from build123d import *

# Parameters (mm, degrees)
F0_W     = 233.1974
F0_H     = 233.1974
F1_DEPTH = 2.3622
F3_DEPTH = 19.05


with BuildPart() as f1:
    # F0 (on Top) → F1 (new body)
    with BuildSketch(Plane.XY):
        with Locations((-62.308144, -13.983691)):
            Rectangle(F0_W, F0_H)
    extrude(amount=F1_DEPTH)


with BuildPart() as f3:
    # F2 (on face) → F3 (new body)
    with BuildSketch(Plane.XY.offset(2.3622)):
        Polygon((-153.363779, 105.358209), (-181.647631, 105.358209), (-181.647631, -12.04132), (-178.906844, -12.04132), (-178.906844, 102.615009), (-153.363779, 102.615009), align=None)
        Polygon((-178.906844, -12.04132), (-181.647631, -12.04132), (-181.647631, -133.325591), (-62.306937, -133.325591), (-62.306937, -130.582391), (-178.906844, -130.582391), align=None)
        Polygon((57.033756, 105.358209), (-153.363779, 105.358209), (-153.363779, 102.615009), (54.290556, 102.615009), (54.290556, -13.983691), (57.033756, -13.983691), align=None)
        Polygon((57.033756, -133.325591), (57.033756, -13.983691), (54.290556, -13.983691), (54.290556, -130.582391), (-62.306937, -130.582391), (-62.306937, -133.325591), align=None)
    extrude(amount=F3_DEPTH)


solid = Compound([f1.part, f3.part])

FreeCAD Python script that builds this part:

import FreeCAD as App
import Part
import Sketcher
Q = App.Units.Quantity

doc = App.newDocument("Part")
params = doc.addObject("Spreadsheet::Sheet", "Params")
for row, (alias, value) in enumerate([
    ("sketch1_width", "9.181 in"),
    ("pad1_length", "0.093 in"),
    ("sketch2_width", "9.181 in"),
    ("sketch2_height", "9.397 in"),
    ("pad2_length", "0.75 in"),
], start=1):
    params.set(f"A{row}", alias)
    params.set(f"B{row}", "=" + value)
    params.setAlias(f"B{row}", alias)

body = doc.addObject("PartDesign::Body", "Body")

sketch1 = doc.addObject("Sketcher::SketchObject", "Sketch")
body.addObject(sketch1)
sketch1.AttachmentSupport = (doc.XY_Plane, [""])
sketch1.MapMode = "FlatFace"
sketch1.addGeometry([
    Part.LineSegment(App.Vector(-178.906844, 102.615009, 0), App.Vector(-178.906844, -130.582391, 0)),
    Part.LineSegment(App.Vector(-178.906844, -130.582391, 0), App.Vector(54.290556, -130.582391, 0)),
    Part.LineSegment(App.Vector(54.290556, -130.582391, 0), App.Vector(54.290556, 102.615009, 0)),
    Part.LineSegment(App.Vector(54.290556, 102.615009, 0), App.Vector(-178.906844, 102.615009, 0)),
], False)
sketch1.addConstraint([
    Sketcher.Constraint("Coincident", 0, 2, 1, 1),
    Sketcher.Constraint("Coincident", 1, 2, 2, 1),
    Sketcher.Constraint("Coincident", 2, 2, 3, 1),
    Sketcher.Constraint("Coincident", 3, 2, 0, 1),
    Sketcher.Constraint("Vertical", 0),
    Sketcher.Constraint("Horizontal", 1),
    Sketcher.Constraint("Vertical", 2),
    Sketcher.Constraint("Horizontal", 3),
    Sketcher.Constraint("Equal", 3, 0),
    Sketcher.Constraint("DistanceX", 1, 1, 1, 2, Q("9.181 in")),
    Sketcher.Constraint("DistanceY", 0, 2, -1, 1, 130.582391),
    Sketcher.Constraint("DistanceX", 0, 2, -1, 1, 178.906844),
])
sketch1.setExpression("Constraints[9]", "Params.sketch1_width")
pad1 = doc.addObject("PartDesign::Pad", "Pad")
body.addObject(pad1)
pad1.Profile = sketch1
pad1.setExpression("Length", "Params.pad1_length")
body2 = doc.addObject("PartDesign::Body", "Body001")

sketch2 = doc.addObject("Sketcher::SketchObject", "Sketch001")
body2.addObject(sketch2)
sketch2.AttachmentSupport = (doc.getObject("XY_Plane001"), [""])
sketch2.MapMode = "FlatFace"
sketch2.AttachmentOffset = App.Placement(App.Vector(0, 0, 0.093 * 25.4), App.Rotation())
sketch2.addGeometry([
    Part.LineSegment(App.Vector(-181.647631, 105.358209, 0), App.Vector(-181.647631, -133.325591, 0)),
    Part.LineSegment(App.Vector(-181.647631, -133.325591, 0), App.Vector(57.033756, -133.325591, 0)),
    Part.LineSegment(App.Vector(57.033756, -133.325591, 0), App.Vector(57.033756, 105.358209, 0)),
    Part.LineSegment(App.Vector(57.033756, 105.358209, 0), App.Vector(-181.647631, 105.358209, 0)),
    Part.LineSegment(App.Vector(-178.906844, -130.582391, 0), App.Vector(-178.906844, 102.615009, 0)),
    Part.LineSegment(App.Vector(-178.906844, 102.615009, 0), App.Vector(54.290556, 102.615009, 0)),
    Part.LineSegment(App.Vector(54.290556, 102.615009, 0), App.Vector(54.290556, -130.582391, 0)),
    Part.LineSegment(App.Vector(54.290556, -130.582391, 0), App.Vector(-178.906844, -130.582391, 0)),
], False)
sketch2.addConstraint([
    Sketcher.Constraint("Coincident", 0, 2, 1, 1),
    Sketcher.Constraint("Coincident", 1, 2, 2, 1),
    Sketcher.Constraint("Coincident", 2, 2, 3, 1),
    Sketcher.Constraint("Coincident", 3, 2, 0, 1),
    Sketcher.Constraint("Coincident", 4, 2, 5, 1),
    Sketcher.Constraint("Coincident", 5, 2, 6, 1),
    Sketcher.Constraint("Coincident", 6, 2, 7, 1),
    Sketcher.Constraint("Coincident", 7, 2, 4, 1),
    Sketcher.Constraint("Vertical", 0),
    Sketcher.Constraint("Horizontal", 1),
    Sketcher.Constraint("Vertical", 2),
    Sketcher.Constraint("Horizontal", 3),
    Sketcher.Constraint("Vertical", 4),
    Sketcher.Constraint("Horizontal", 5),
    Sketcher.Constraint("Vertical", 6),
    Sketcher.Constraint("Horizontal", 7),
    Sketcher.Constraint("Equal", 7, 4),
    Sketcher.Constraint("DistanceX", 5, 1, 5, 2, Q("9.181 in")),
    Sketcher.Constraint("DistanceY", 0, 2, 0, 1, Q("9.397 in")),
    Sketcher.Constraint("DistanceY", 4, 2, 3, 2, Q("0.108 in")),
    Sketcher.Constraint("DistanceX", 4, 2, 2, 2, Q("9.289 in")),
    Sketcher.Constraint("DistanceX", 1, 1, 1, 2, 238.681387),
    Sketcher.Constraint("DistanceX", 0, 2, -1, 1, 181.647631),
    Sketcher.Constraint("DistanceY", 0, 2, -1, 1, 133.325591),
])
sketch2.setExpression("Constraints[17]", "Params.sketch2_width")
sketch2.setExpression("Constraints[18]", "Params.sketch2_height")
pad2 = doc.addObject("PartDesign::Pad", "Pad001")
body2.addObject(pad2)
pad2.Profile = sketch2
pad2.setExpression("Length", "Params.pad2_length")

doc.recompute()
